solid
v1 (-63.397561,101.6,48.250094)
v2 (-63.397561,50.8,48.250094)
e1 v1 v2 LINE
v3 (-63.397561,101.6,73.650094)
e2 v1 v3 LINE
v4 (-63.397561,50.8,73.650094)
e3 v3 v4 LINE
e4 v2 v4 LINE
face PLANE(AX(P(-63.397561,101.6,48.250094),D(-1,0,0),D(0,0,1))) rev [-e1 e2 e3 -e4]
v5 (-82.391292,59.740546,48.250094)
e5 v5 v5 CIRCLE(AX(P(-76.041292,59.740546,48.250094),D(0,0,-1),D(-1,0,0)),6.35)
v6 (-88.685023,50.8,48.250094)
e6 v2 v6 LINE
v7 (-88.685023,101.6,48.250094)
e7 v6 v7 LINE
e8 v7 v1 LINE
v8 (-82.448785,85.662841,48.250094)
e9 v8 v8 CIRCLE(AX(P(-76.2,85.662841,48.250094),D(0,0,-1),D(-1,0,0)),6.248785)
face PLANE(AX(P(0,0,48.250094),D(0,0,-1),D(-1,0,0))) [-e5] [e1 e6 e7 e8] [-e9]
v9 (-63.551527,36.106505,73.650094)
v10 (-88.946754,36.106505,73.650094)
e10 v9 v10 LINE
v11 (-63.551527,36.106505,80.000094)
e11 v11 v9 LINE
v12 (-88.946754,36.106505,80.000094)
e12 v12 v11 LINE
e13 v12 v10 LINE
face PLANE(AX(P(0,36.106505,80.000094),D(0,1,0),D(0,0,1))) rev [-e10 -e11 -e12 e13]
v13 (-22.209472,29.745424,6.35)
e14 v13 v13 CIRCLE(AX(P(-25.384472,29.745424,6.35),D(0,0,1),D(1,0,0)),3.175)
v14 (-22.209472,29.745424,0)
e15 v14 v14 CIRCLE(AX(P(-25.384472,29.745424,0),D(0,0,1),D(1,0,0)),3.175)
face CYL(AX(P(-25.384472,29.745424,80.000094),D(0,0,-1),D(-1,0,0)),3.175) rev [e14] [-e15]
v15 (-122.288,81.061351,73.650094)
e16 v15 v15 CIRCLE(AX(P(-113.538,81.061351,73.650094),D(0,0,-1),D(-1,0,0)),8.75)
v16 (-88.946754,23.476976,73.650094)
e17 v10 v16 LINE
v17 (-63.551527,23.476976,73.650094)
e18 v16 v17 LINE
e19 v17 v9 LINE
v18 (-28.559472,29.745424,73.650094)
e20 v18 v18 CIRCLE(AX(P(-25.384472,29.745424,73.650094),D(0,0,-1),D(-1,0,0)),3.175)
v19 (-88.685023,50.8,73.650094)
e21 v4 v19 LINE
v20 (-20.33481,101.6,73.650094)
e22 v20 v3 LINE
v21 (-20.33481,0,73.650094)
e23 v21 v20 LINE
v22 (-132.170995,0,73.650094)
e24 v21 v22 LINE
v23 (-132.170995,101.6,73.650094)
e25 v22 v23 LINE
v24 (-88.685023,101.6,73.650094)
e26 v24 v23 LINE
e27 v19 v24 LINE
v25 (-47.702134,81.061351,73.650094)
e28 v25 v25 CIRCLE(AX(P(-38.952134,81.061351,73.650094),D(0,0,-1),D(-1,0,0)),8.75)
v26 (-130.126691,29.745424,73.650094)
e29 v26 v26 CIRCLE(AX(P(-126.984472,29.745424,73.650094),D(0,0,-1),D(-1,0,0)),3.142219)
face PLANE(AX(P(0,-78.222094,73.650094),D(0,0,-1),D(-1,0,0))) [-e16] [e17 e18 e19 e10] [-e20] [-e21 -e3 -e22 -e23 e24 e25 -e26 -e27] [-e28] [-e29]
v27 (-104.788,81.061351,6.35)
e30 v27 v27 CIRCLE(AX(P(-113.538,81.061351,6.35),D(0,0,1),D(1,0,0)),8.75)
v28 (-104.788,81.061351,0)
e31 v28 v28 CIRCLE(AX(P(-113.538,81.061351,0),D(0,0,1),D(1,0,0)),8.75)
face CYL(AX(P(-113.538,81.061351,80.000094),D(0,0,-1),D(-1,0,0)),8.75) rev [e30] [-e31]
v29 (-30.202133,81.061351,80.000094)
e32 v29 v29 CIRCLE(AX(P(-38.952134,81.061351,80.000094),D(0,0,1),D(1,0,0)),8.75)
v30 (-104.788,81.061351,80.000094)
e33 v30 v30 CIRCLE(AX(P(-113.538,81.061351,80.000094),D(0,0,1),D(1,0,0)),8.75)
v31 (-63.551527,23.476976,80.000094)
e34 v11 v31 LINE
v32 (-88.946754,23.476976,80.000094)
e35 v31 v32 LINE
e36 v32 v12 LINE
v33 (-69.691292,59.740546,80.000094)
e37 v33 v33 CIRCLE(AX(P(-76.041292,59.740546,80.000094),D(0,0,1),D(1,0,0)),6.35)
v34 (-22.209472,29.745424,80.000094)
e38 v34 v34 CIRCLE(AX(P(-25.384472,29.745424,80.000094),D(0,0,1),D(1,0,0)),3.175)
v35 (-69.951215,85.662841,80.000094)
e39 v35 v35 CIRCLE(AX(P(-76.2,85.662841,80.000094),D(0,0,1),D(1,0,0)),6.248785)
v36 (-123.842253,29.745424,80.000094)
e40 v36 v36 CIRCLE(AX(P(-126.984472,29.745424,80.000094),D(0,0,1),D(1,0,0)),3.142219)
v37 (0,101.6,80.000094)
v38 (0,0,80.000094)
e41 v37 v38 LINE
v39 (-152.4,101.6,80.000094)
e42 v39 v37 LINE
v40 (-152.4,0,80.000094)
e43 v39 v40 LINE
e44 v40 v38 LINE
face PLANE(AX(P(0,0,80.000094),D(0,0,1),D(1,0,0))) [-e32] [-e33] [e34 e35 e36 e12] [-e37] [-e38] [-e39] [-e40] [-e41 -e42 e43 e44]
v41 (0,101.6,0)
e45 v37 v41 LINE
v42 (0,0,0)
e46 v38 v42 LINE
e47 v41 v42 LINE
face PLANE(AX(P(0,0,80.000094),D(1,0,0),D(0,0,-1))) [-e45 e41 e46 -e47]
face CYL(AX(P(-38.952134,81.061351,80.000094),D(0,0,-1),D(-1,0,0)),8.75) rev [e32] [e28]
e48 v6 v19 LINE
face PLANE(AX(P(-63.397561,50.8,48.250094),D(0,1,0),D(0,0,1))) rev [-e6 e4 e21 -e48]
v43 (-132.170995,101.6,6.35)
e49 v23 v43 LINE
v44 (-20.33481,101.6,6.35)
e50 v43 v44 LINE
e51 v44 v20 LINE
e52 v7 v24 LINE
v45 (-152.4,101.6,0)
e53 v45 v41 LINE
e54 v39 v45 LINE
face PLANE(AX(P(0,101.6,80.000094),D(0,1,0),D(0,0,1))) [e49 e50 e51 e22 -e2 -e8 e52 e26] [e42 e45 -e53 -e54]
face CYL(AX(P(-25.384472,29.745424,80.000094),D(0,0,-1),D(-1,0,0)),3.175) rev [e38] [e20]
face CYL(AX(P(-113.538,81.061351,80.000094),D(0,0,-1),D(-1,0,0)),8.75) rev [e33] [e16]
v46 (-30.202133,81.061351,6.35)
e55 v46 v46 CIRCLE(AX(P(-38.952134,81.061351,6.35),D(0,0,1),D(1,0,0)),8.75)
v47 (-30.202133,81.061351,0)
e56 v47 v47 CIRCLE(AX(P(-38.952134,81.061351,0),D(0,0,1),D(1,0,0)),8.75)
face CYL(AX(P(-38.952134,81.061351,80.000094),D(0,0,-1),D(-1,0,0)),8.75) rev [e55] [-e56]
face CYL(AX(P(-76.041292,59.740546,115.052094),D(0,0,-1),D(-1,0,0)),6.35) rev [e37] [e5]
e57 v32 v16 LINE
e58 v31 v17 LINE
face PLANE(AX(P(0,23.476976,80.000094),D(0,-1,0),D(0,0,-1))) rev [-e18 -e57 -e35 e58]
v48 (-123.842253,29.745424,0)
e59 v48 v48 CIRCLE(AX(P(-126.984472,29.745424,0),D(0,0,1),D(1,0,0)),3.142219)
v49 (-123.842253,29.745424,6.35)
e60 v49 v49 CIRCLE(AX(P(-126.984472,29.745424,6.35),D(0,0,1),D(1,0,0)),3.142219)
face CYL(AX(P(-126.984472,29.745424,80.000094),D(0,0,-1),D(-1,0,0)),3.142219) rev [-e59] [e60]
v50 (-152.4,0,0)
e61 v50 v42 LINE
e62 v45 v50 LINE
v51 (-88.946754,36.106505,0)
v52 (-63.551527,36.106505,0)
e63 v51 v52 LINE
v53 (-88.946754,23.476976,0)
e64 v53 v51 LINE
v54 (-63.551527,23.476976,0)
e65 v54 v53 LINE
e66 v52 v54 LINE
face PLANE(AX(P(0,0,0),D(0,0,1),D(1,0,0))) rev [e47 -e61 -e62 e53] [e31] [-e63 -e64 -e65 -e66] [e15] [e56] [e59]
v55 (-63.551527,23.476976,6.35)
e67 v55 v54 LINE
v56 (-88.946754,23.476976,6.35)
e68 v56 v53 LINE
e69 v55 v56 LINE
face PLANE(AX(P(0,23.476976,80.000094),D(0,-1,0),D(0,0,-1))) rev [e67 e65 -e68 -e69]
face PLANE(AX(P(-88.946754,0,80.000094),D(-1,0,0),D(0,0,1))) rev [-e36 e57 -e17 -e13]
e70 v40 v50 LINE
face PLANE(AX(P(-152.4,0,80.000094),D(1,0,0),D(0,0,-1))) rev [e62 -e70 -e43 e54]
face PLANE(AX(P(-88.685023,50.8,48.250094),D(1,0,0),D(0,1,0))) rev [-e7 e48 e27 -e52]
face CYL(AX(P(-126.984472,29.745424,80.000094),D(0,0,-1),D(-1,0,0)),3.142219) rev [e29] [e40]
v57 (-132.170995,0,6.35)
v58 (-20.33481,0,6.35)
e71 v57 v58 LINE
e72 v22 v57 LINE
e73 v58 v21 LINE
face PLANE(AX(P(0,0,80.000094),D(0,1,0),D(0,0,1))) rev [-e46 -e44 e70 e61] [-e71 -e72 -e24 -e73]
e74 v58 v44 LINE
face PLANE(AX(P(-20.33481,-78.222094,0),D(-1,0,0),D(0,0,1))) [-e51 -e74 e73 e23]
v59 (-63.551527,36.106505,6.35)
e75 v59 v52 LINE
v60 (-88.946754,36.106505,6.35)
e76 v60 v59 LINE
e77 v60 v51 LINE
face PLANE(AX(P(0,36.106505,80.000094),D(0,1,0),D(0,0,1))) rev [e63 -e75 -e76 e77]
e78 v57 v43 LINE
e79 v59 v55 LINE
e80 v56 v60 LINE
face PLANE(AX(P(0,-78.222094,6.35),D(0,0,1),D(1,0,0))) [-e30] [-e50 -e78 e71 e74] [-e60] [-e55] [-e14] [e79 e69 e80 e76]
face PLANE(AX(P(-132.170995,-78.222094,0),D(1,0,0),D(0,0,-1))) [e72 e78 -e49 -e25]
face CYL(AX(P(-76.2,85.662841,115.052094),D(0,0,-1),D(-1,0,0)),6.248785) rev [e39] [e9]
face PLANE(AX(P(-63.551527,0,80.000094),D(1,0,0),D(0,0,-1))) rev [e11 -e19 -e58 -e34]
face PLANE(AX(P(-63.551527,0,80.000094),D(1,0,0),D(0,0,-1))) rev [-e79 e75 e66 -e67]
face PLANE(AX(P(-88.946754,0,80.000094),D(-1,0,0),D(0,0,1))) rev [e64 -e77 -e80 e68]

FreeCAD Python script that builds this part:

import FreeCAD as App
import Part
import Sketcher
Q = App.Units.Quantity


def add_polygon(sketch, points):
    """Adds a closed chain of lines whose ends are joined by coincident constraints."""
    first, n = sketch.GeometryCount, len(points)
    for a, b in zip(points, points[1:] + points[:1]):
        sketch.addGeometry(Part.LineSegment(App.Vector(*a, 0), App.Vector(*b, 0)), False)
    for i in range(n):
        sketch.addConstraint(Sketcher.Constraint("Coincident", first + i, 2, first + (i + 1) % n, 1))

doc = App.newDocument("Part")
body = doc.addObject("PartDesign::Body", "Body")

sketch1 = doc.addObject("Sketcher::SketchObject", "Sketch")
body.addObject(sketch1)
sketch1.AttachmentSupport = (doc.XY_Plane, [""])
sketch1.MapMode = "FlatFace"
add_polygon(sketch1, [(0, 0), (0, 101.6), (-152.4, 101.6), (-152.4, 0)])
sketch1.addGeometry(Part.Circle(App.Vector(-127, 29.7, 0), App.Vector(0, 0, 1), 3.1), False)
add_polygon(sketch1, [(-63.6, 23.5), (-88.9, 23.5), (-88.9, 36.1), (-63.6, 36.1)])
sketch1.addGeometry(Part.Circle(App.Vector(-25.4, 29.7, 0), App.Vector(0, 0, 1), 3.2), False)
sketch1.addGeometry(Part.Circle(App.Vector(-113.5, 81.1, 0), App.Vector(0, 0, 1), 8.8), False)
sketch1.addGeometry(Part.Circle(App.Vector(-39, 81.1, 0), App.Vector(0, 0, 1), 8.8), False)
sketch1.addConstraint([
    Sketcher.Constraint("Vertical", 0),
    Sketcher.Constraint("Horizontal", 1),
    Sketcher.Constraint("Vertical", 2),
    Sketcher.Constraint("Horizontal", 3),
    Sketcher.Constraint("Horizontal", 5),
    Sketcher.Constraint("Vertical", 6),
    Sketcher.Constraint("Horizontal", 7),
    Sketcher.Constraint("Vertical", 8),
    Sketcher.Constraint("Coincident", 3, 2, -1, 1),
    Sketcher.Constraint("Equal", 10, 11),
    Sketcher.Constraint("Horizontal", 4, 3, 9, 3),
    Sketcher.Constraint("Horizontal", 10, 3, 11, 3),
    Sketcher.Constraint("Diameter", 9, Q("0.25 in")),
    Sketcher.Constraint("DistanceX", 1, 2, 1, 1, Q("6 in")),
    Sketcher.Constraint("DistanceY", 0, 1, 0, 2, Q("4 in")),
    Sketcher.Constraint("DistanceX", 4, 3, 9, 3, Q("4 in")),
    Sketcher.Constraint("Diameter", 10, 17.500001),
    Sketcher.Constraint("DistanceX", 10, 3, -1, 1, Q("4.47 in")),
    Sketcher.Constraint("Diameter", 4, 6.284438),
    Sketcher.Constraint("DistanceY", 6, 1, 6, 2, 12.62953),
    Sketcher.Constraint("DistanceX", 5, 2, 5, 1, 25.395226),
    Sketcher.Constraint("DistanceY", -1, 1, 10, 3, 81.061351),
    Sketcher.Constraint("DistanceX", 11, 3, 9, 3, 13.567661),
    Sketcher.Constraint("DistanceX", 4, 3, 5, 2, 38.037719),
    Sketcher.Constraint("DistanceY", 4, 3, 6, 2, 6.361082),
    Sketcher.Constraint("DistanceX", 4, 3, -1, 1, 126.984472),
    Sketcher.Constraint("DistanceY", -1, 1, 4, 3, 29.745424),
])
pad1 = doc.addObject("PartDesign::Pad", "Pad")
body.addObject(pad1)
pad1.Profile = sketch1
pad1.Length = 80.000094

sketch2 = doc.addObject("Sketcher::SketchObject", "Sketch001")
body.addObject(sketch2)
sketch2.AttachmentSupport = (doc.XZ_Plane, [""])
sketch2.MapMode = "FlatFace"
sketch2.AttachmentOffset = App.Placement(App.Vector(0, 0, -4 * 25.4), App.Rotation())
add_polygon(sketch2, [(-20, 74), (-20, 6), (-132, 6), (-132, 74)])
sketch2.addConstraint([
    Sketcher.Constraint("Vertical", 0),
    Sketcher.Constraint("Horizontal", 1),
    Sketcher.Constraint("Vertical", 2),
    Sketcher.Constraint("Horizontal", 3),
    Sketcher.Constraint("DistanceY", -1, 1, 0, 2, Q("0.25 in")),
    Sketcher.Constraint("DistanceX", 1, 2, 1, 1, 111.836185),
    Sketcher.Constraint("DistanceY", 0, 2, 0, 1, 67.300094),
    Sketcher.Constraint("DistanceX", 0, 2, -1, 1, 20.33481),
])
pocket1 = doc.addObject("PartDesign::Pocket", "Pocket")
body.addObject(pocket1)
pocket1.Profile = sketch2
pocket1.Length = 179.822094
pocket1.Reversed = True

sketch3 = doc.addObject("Sketcher::SketchObject", "Sketch002")
body.addObject(sketch3)
sketch3.AttachmentSupport = (doc.XY_Plane, [""])
sketch3.MapMode = "FlatFace"
sketch3.AttachmentOffset = App.Placement(App.Vector(0, 0, 73.650094), App.Rotation())
sketch3.addGeometry([
    Part.Circle(App.Vector(-76, 60, 0), App.Vector(0, 0, 1), 6),
    Part.Circle(App.Vector(-76, 86, 0), App.Vector(0, 0, 1), 6),
], False)
sketch3.addConstraint([
    Sketcher.Constraint("Diameter", 0, Q("0.5 in")),
    Sketcher.Constraint("DistanceX", 1, 3, -1, 1, Q("3 in")),
    Sketcher.Constraint("Diameter", 1, 12.49757),
    Sketcher.Constraint("DistanceY", -1, 1, 1, 3, 85.662841),
    Sketcher.Constraint("DistanceX", 0, 3, -1, 1, 76.041292),
    Sketcher.Constraint("DistanceY", -1, 1, 0, 3, 59.740546),
])
pocket2 = doc.addObject("PartDesign::Pocket", "Pocket001")
body.addObject(pocket2)
pocket2.Profile = sketch3
pocket2.Length = Q("1.63 in")
pocket2.Reversed = True

sketch4 = doc.addObject("Sketcher::SketchObject", "Sketch003")
body.addObject(sketch4)
sketch4.AttachmentSupport = (doc.XY_Plane, [""])
sketch4.MapMode = "FlatFace"
sketch4.AttachmentOffset = App.Placement(App.Vector(0, 0, 48.250094), App.Rotation())
add_polygon(sketch4, [(-63, 102), (-63, 51), (-89, 51), (-89, 102)])
sketch4.addGeometry(Part.Circle(App.Vector(-76, 60, 0), App.Vector(0, 0, 1), 6), False)
sketch4.addGeometry(Part.Circle(App.Vector(-76, 86, 0), App.Vector(0, 0, 1), 6), False)
sketch4.addConstraint([
    Sketcher.Constraint("Vertical", 0),
    Sketcher.Constraint("Horizontal", 1),
    Sketcher.Constraint("Vertical", 2),
    Sketcher.Constraint("Horizontal", 3),
    Sketcher.Constraint("Diameter", 4, Q("0.5 in")),
    Sketcher.Constraint("DistanceY", 0, 2, 0, 1, Q("2 in")),
    Sketcher.Constraint("DistanceX", 5, 3, -1, 1, Q("3 in")),
    Sketcher.Constraint("DistanceY", -1, 1, 0, 2, Q("2 in")),
    Sketcher.Constraint("Diameter", 5, 12.49757),
    Sketcher.Constraint("DistanceX", 1, 2, 1, 1, 25.287463),
    Sketcher.Constraint("DistanceY", -1, 1, 5, 3, 85.662841),
    Sketcher.Constraint("DistanceX", 0, 2, -1, 1, 63.397561),
    Sketcher.Constraint("DistanceX", 4, 3, 0, 2, 12.643731),
    Sketcher.Constraint("DistanceY", -1, 1, 4, 3, 59.740546),
])
pad2 = doc.addObject("PartDesign::Pad", "Pad001")
body.addObject(pad2)
pad2.Profile = sketch4
pad2.Length = Q("1 in")

doc.recompute()
